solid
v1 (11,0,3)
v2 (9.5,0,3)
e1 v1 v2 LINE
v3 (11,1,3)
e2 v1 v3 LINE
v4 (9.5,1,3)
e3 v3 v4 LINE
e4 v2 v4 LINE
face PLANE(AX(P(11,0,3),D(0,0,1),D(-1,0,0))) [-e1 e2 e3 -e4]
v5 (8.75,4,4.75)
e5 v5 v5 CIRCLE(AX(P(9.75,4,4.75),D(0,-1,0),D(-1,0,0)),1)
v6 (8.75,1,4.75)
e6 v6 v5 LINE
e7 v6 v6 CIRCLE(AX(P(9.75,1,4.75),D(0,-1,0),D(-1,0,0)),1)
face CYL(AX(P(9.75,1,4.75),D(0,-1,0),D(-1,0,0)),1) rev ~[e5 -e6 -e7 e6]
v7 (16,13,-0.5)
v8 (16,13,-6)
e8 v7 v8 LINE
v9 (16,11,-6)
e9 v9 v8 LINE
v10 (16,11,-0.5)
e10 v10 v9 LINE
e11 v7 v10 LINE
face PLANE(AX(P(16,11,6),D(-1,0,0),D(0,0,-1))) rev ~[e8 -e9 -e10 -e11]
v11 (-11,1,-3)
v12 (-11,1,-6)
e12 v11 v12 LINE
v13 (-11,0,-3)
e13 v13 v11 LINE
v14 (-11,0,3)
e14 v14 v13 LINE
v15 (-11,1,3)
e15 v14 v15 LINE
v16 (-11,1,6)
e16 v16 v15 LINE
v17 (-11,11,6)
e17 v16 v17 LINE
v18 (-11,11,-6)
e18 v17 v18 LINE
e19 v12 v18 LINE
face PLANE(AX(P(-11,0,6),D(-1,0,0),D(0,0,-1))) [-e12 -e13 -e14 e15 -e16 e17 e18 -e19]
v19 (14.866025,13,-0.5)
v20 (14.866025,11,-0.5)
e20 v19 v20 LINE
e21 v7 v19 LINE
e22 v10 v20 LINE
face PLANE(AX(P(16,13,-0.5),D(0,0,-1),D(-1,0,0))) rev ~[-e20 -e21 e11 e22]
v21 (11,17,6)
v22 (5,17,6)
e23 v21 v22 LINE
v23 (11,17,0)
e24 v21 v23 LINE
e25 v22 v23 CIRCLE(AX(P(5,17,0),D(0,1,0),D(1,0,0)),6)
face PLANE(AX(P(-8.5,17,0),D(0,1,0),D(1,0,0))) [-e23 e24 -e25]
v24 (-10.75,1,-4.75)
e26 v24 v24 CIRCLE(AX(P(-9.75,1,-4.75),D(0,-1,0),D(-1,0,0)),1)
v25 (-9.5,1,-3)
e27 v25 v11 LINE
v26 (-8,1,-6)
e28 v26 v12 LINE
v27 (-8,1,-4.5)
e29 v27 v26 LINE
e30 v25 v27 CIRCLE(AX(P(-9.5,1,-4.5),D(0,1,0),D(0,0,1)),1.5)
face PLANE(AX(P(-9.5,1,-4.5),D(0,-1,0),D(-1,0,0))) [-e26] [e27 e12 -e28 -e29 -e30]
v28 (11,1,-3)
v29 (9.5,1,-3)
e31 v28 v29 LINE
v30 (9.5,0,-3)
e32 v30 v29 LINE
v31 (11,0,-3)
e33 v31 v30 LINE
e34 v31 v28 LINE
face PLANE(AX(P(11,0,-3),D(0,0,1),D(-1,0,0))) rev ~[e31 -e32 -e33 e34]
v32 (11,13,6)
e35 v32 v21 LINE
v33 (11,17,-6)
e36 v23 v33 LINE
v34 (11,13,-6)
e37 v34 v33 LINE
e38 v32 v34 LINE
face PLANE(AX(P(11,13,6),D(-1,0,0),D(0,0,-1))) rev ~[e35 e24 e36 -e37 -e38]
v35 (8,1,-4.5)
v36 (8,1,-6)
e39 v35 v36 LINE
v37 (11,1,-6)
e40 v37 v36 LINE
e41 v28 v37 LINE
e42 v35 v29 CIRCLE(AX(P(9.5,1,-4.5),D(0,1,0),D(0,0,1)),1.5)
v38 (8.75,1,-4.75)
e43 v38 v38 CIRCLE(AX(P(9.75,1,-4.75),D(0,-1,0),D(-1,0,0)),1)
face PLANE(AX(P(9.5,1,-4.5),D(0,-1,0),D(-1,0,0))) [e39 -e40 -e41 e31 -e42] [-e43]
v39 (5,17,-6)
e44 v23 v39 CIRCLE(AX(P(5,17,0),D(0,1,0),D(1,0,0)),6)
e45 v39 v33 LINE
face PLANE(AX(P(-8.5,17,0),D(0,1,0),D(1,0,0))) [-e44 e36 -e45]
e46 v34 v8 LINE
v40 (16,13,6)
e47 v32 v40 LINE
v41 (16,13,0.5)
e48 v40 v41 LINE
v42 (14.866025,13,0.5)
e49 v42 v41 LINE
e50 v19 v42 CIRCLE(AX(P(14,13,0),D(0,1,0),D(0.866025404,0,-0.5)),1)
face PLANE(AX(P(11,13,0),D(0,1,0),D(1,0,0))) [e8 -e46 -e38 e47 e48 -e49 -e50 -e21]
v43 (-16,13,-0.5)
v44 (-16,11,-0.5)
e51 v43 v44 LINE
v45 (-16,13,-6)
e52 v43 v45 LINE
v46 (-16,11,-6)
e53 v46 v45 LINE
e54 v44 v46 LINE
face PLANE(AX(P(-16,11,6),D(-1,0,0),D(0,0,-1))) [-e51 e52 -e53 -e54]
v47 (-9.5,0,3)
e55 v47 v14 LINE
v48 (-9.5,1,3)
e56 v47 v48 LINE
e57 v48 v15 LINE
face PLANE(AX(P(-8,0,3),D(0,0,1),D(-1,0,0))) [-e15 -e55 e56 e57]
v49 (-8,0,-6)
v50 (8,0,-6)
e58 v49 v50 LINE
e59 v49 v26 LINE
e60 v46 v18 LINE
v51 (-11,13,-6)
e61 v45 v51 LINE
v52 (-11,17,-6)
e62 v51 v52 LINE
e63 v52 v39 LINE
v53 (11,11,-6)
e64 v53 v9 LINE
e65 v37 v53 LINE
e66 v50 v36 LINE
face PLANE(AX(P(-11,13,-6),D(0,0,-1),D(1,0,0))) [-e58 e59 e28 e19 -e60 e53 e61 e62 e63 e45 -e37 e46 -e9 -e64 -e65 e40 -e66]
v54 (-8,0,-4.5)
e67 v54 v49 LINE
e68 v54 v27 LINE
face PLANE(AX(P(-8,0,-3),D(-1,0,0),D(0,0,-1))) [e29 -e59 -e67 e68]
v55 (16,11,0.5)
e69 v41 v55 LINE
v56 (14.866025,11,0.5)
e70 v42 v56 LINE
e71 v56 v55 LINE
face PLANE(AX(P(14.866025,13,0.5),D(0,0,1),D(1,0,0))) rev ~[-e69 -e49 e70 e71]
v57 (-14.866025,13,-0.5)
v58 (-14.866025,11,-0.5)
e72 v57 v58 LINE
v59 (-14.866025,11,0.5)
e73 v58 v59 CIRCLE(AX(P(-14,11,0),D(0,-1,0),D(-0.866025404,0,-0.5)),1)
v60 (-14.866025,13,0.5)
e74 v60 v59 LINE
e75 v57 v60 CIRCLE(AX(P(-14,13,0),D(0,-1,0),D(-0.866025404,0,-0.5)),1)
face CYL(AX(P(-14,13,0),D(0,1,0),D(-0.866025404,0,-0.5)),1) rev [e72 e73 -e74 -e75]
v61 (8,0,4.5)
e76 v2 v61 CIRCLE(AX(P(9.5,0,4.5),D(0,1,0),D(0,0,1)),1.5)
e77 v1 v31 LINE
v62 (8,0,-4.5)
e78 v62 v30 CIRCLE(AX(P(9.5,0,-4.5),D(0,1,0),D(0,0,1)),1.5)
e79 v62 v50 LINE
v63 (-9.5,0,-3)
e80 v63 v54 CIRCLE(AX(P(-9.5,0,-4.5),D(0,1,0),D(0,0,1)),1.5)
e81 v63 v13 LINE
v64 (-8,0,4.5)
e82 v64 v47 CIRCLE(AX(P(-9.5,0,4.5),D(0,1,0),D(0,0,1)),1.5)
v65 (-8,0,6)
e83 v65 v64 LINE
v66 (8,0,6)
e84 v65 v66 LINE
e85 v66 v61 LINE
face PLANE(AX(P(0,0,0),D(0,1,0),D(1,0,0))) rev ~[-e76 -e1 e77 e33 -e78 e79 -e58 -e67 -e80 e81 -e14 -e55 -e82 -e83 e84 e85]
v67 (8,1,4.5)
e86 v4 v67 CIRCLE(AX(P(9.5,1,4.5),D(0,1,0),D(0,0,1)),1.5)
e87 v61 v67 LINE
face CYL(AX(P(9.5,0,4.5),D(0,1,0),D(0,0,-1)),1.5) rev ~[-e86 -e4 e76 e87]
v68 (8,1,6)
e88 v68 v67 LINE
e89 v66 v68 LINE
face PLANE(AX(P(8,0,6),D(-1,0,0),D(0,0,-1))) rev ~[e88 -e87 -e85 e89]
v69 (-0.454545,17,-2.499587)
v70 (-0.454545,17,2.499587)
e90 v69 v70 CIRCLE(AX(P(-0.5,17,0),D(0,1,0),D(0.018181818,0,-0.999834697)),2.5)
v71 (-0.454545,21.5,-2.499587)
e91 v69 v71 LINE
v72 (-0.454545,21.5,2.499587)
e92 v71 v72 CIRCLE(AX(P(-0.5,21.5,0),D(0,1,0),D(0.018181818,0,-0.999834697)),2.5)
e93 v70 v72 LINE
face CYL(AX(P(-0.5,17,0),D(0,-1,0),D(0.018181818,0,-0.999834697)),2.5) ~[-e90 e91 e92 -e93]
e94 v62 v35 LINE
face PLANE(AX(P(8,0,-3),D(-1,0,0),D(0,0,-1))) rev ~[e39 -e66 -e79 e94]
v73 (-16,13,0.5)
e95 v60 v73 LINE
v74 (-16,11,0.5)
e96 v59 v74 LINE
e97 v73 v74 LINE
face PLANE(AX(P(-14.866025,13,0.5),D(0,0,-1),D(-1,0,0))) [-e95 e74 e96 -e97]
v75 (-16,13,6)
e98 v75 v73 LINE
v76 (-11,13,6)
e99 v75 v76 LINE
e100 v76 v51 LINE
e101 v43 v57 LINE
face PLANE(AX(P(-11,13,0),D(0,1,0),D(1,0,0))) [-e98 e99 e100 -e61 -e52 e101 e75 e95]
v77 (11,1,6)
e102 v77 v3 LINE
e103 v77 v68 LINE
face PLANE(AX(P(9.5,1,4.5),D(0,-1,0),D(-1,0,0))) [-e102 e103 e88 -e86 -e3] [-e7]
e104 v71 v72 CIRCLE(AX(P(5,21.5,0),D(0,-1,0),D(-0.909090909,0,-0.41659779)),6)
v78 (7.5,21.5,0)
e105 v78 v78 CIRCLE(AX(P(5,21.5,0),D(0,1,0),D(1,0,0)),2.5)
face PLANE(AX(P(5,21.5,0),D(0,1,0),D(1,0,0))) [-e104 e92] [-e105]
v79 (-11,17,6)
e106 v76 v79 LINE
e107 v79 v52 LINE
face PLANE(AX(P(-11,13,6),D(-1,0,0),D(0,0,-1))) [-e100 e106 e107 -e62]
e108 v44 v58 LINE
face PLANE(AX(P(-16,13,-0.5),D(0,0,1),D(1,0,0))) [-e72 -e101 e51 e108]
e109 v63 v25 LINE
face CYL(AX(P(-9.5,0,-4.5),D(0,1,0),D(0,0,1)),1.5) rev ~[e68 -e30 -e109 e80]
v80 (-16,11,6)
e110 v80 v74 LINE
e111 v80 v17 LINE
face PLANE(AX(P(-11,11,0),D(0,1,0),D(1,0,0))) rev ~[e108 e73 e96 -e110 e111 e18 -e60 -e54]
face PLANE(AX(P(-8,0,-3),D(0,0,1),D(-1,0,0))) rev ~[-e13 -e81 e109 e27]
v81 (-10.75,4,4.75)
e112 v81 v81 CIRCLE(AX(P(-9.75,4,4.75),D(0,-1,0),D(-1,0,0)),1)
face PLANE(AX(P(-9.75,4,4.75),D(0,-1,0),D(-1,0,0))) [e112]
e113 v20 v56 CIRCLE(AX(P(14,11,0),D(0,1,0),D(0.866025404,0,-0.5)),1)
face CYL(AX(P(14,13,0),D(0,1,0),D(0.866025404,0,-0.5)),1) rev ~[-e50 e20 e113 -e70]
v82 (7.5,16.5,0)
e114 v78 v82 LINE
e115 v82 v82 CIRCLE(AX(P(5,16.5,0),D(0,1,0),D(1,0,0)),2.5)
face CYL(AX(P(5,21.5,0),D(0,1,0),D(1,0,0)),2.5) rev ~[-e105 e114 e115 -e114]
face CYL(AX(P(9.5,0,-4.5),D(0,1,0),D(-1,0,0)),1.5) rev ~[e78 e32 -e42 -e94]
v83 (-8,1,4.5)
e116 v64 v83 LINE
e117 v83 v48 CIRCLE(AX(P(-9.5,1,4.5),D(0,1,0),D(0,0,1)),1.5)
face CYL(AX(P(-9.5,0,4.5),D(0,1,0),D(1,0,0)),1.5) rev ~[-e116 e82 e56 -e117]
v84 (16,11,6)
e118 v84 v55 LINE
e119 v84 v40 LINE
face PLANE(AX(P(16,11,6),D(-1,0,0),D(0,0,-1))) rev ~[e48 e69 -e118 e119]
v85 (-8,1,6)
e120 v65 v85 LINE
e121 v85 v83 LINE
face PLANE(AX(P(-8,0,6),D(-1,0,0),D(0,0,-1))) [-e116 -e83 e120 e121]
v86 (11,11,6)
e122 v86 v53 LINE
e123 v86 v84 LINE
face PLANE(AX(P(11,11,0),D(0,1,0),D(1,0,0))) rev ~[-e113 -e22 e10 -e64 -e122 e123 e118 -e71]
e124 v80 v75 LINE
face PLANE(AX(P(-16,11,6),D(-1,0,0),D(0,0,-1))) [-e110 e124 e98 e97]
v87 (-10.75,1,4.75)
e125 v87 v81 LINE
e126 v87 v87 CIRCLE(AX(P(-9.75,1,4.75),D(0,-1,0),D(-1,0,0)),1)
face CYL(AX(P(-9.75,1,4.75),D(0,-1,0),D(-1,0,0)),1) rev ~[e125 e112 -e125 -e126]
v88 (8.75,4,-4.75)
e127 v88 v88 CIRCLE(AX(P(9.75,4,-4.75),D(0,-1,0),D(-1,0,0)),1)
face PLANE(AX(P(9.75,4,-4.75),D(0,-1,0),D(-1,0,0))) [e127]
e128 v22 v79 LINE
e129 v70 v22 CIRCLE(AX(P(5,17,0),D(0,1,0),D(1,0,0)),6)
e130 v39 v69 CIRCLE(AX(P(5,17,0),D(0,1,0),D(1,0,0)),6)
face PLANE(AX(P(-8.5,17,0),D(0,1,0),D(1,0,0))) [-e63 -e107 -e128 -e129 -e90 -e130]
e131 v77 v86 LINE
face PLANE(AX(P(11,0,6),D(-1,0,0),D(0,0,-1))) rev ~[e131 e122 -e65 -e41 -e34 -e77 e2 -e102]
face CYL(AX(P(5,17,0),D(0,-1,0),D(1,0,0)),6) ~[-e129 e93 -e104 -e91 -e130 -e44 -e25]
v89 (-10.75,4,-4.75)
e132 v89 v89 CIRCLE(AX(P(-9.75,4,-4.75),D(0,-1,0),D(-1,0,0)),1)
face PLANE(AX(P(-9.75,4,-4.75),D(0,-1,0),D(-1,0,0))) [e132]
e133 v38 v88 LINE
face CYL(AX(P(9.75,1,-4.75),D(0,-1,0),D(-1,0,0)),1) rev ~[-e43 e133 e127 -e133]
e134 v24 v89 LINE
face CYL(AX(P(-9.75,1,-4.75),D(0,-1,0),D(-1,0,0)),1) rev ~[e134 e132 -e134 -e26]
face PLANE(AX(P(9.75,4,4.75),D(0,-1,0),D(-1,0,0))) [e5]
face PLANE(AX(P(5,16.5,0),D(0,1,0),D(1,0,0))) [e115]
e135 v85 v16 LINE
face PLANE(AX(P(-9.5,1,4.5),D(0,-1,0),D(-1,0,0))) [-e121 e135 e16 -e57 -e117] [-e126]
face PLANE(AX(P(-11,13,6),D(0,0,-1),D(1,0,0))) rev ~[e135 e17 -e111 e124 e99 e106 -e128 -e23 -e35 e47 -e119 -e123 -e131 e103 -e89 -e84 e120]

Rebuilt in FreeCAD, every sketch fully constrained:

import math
import FreeCAD as App
import Part
import Sketcher

V = App.Vector
Q = App.Units.Quantity


def edges_at(feature, points):
    """Names of the edges that pass closest to the given points."""
    edges = feature.Shape.Edges
    near = lambda p: min(range(len(edges)), key=lambda i: edges[i].distToShape(Part.Vertex(*p))[0])
    return sorted({f"Edge{near(p) + 1}" for p in points})


def add_polygon(sketch, points):
    """Adds a closed chain of lines whose ends are joined by coincident constraints."""
    first, n = sketch.GeometryCount, len(points)
    for a, b in zip(points, points[1:] + points[:1]):
        sketch.addGeometry(Part.LineSegment(App.Vector(*a, 0), App.Vector(*b, 0)), False)
    for i in range(n):
        sketch.addConstraint(Sketcher.Constraint("Coincident", first + i, 2, first + (i + 1) % n, 1))

doc = App.newDocument("Part")
body = doc.addObject("PartDesign::Body", "Body")

sketch1 = doc.addObject("Sketcher::SketchObject", "Sketch")
body.addObject(sketch1)
sketch1.AttachmentSupport = (doc.XZ_Plane, [""])
sketch1.MapMode = "FlatFace"
add_polygon(sketch1, [(-11, -6), (-11, 6), (11, 6), (11, -6)])
sketch1.addConstraint([
    Sketcher.Constraint("Vertical", 0),
    Sketcher.Constraint("Horizontal", 1),
    Sketcher.Constraint("Vertical", 2),
    Sketcher.Constraint("Horizontal", 3),
    Sketcher.Constraint("Symmetric", 0, 2, 2, 2, -1, 1),
    Sketcher.Constraint("DistanceX", 1, 1, 1, 2, Q("22 mm")),
    Sketcher.Constraint("DistanceY", 0, 1, 0, 2, Q("12 mm")),
])
pad1 = doc.addObject("PartDesign::Pad", "Pad")
body.addObject(pad1)
pad1.Profile = sketch1
pad1.Length = 11
pad1.Reversed = True

sketch2 = doc.addObject("Sketcher::SketchObject", "Sketch001")
body.addObject(sketch2)
sketch2.AttachmentSupport = (doc.XZ_Plane, [""])
sketch2.MapMode = "FlatFace"
sketch2.AttachmentOffset = App.Placement(V(0, 0, -11), App.Rotation())
add_polygon(sketch2, [(-16, -6), (-16, 6), (-6, 6), (-6, -6)])
add_polygon(sketch2, [(6, -6), (6, 6), (16, 6), (16, -6)])
sketch2.addConstraint([
    Sketcher.Constraint("Vertical", 0),
    Sketcher.Constraint("Horizontal", 1),
    Sketcher.Constraint("Vertical", 2),
    Sketcher.Constraint("Horizontal", 3),
    Sketcher.Constraint("Vertical", 4),
    Sketcher.Constraint("Horizontal", 5),
    Sketcher.Constraint("Vertical", 6),
    Sketcher.Constraint("Horizontal", 7),
    Sketcher.Constraint("Symmetric", 2, 2, 4, 2, -1, 1),
    Sketcher.Constraint("Symmetric", 0, 2, 6, 2, -1, 1),
    Sketcher.Constraint("Horizontal", 1, 2, 4, 2),
    Sketcher.Constraint("DistanceX", 1, 1, 1, 2, Q("10 mm")),
    Sketcher.Constraint("DistanceY", 0, 1, 0, 2, Q("12 mm")),
    Sketcher.Constraint("DistanceX", 0, 2, -1, 1, Q("16 mm")),
])
pad2 = doc.addObject("PartDesign::Pad", "Pad001")
body.addObject(pad2)
pad2.Profile = sketch2
pad2.Length = 2
pad2.Reversed = True

sketch3 = doc.addObject("Sketcher::SketchObject", "Sketch002")
body.addObject(sketch3)
sketch3.AttachmentSupport = (doc.XZ_Plane, [""])
sketch3.MapMode = "FlatFace"
sketch3.AttachmentOffset = App.Placement(V(0, 0, -11), App.Rotation())
add_polygon(sketch3, [(-6, -6), (-6, 6), (6, 6), (6, -6)])
sketch3.addConstraint([
    Sketcher.Constraint("Vertical", 0),
    Sketcher.Constraint("Horizontal", 1),
    Sketcher.Constraint("Vertical", 2),
    Sketcher.Constraint("Horizontal", 3),
    Sketcher.Constraint("Symmetric", 0, 2, 2, 2, -1, 1),
    Sketcher.Constraint("Equal", 3, 0),
    Sketcher.Constraint("DistanceX", 1, 1, 1, 2, Q("12 mm")),
])
pad3 = doc.addObject("PartDesign::Pad", "Pad002")
body.addObject(pad3)
pad3.Profile = sketch3
pad3.Length = 6
pad3.Reversed = True

sketch4 = doc.addObject("Sketcher::SketchObject", "Sketch003")
body.addObject(sketch4)
sketch4.AttachmentSupport = (doc.XZ_Plane, [""])
sketch4.MapMode = "FlatFace"
sketch4.AttachmentOffset = App.Placement(V(0, 0, -13), App.Rotation())
sketch4.addGeometry([
    Part.LineSegment(V(-14.866025, -0.5, 0), V(-16, -0.5, 0)),
    Part.LineSegment(V(-16, -0.5, 0), V(-16, 0.5, 0)),
    Part.LineSegment(V(-16, 0.5, 0), V(-14.866025, 0.5, 0)),
    Part.ArcOfCircle(Part.Circle(V(-14, 0, 0), V(0, 0, 1), 1), math.radians(-150), math.radians(150)),
], False)
sketch4.addConstraint([
    Sketcher.Constraint("Coincident", 0, 2, 1, 1),
    Sketcher.Constraint("Coincident", 1, 2, 2, 1),
    Sketcher.Constraint("Coincident", 2, 2, 3, 2),
    Sketcher.Constraint("Coincident", 3, 1, 0, 1),
    Sketcher.Constraint("Horizontal", 0),
    Sketcher.Constraint("Vertical", 1),
    Sketcher.Constraint("Horizontal", 2),
    Sketcher.Constraint("Symmetric", 2, 2, 3, 1, -1),
    Sketcher.Constraint("Radius", 3, Q("1 mm")),
    Sketcher.Constraint("DistanceY", 1, 1, 1, 2, Q("1 mm")),
    Sketcher.Constraint("DistanceX", 3, 3, -1, 1, Q("14 mm")),
    Sketcher.Constraint("DistanceX", 0, 2, -1, 1, Q("16 mm")),
])
pocket1 = doc.addObject("PartDesign::Pocket", "Pocket")
body.addObject(pocket1)
pocket1.Profile = sketch4
pocket1.Length = 2
pocket1.Reversed = True

sketch5 = doc.addObject("Sketcher::SketchObject", "Sketch004")
body.addObject(sketch5)
sketch5.AttachmentSupport = (doc.XZ_Plane, [""])
sketch5.MapMode = "FlatFace"
sketch5.AttachmentOffset = App.Placement(V(0, 0, -13), App.Rotation())
add_polygon(sketch5, [(-11, -6), (-11, 6), (-6, 6), (-6, -6)])
add_polygon(sketch5, [(6, -6), (6, 6), (11, 6), (11, -6)])
sketch5.addConstraint([
    Sketcher.Constraint("Vertical", 0),
    Sketcher.Constraint("Horizontal", 1),
    Sketcher.Constraint("Vertical", 2),
    Sketcher.Constraint("Horizontal", 3),
    Sketcher.Constraint("Vertical", 4),
    Sketcher.Constraint("Horizontal", 5),
    Sketcher.Constraint("Vertical", 6),
    Sketcher.Constraint("Horizontal", 7),
    Sketcher.Constraint("Symmetric", 2, 2, 4, 2, -1, 1),
    Sketcher.Constraint("Symmetric", 0, 2, 6, 2, -1, 1),
    Sketcher.Constraint("Horizontal", 1, 2, 4, 2),
    Sketcher.Constraint("DistanceX", 1, 1, 1, 2, Q("5 mm")),
    Sketcher.Constraint("DistanceY", 0, 1, 0, 2, Q("12 mm")),
    Sketcher.Constraint("DistanceX", 0, 2, -1, 1, Q("11 mm")),
])
pad4 = doc.addObject("PartDesign::Pad", "Pad003")
body.addObject(pad4)
pad4.Profile = sketch5
pad4.Length = 4
pad4.Reversed = True

sketch6 = doc.addObject("Sketcher::SketchObject", "Sketch005")
body.addObject(sketch6)
sketch6.AttachmentSupport = (doc.XZ_Plane, [""])
sketch6.MapMode = "FlatFace"
sketch6.AttachmentOffset = App.Placement(V(0, 0, -13), App.Rotation())
sketch6.addGeometry([
    Part.LineSegment(V(16, -0.5, 0), V(14.866025, -0.5, 0)),
    Part.ArcOfCircle(Part.Circle(V(14, 0, 0), V(0, 0, 1), 1), math.radians(30), math.radians(330)),
    Part.LineSegment(V(14.866025, 0.5, 0), V(16, 0.5, 0)),
    Part.LineSegment(V(16, 0.5, 0), V(16, -0.5, 0)),
], False)
sketch6.addConstraint([
    Sketcher.Constraint("Coincident", 0, 2, 1, 2),
    Sketcher.Constraint("Coincident", 1, 1, 2, 1),
    Sketcher.Constraint("Coincident", 2, 2, 3, 1),
    Sketcher.Constraint("Coincident", 3, 2, 0, 1),
    Sketcher.Constraint("Horizontal", 0),
    Sketcher.Constraint("Horizontal", 2),
    Sketcher.Constraint("Vertical", 3),
    Sketcher.Constraint("Symmetric", 0, 2, 1, 1, -1),
    Sketcher.Constraint("Radius", 1, Q("1 mm")),
    Sketcher.Constraint("DistanceY", 3, 2, 3, 1, Q("1 mm")),
    Sketcher.Constraint("DistanceX", -1, 1, 1, 3, Q("14 mm")),
    Sketcher.Constraint("DistanceX", -1, 1, 2, 2, Q("16 mm")),
])
pocket2 = doc.addObject("PartDesign::Pocket", "Pocket001")
body.addObject(pocket2)
pocket2.Profile = sketch6
pocket2.Length = 4
pocket2.Reversed = True

sketch7 = doc.addObject("Sketcher::SketchObject", "Sketch006")
body.addObject(sketch7)
sketch7.AttachmentSupport = (doc.XZ_Plane, [""])
sketch7.MapMode = "FlatFace"
sketch7.AttachmentOffset = App.Placement(V(0, 0, -17), App.Rotation())
sketch7.addGeometry(Part.Circle(V(5, 0, 0), V(0, 0, 1), 6), False)
sketch7.addConstraint([
    Sketcher.Constraint("PointOnObject", 0, 3, -1),
    Sketcher.Constraint("Diameter", 0, Q("12 mm")),
    Sketcher.Constraint("DistanceX", -1, 1, 0, 3, Q("5 mm")),
])
pad5 = doc.addObject("PartDesign::Pad", "Pad004")
body.addObject(pad5)
pad5.Profile = sketch7
pad5.Length = 4.5
pad5.Reversed = True

sketch8 = doc.addObject("Sketcher::SketchObject", "Sketch007")
body.addObject(sketch8)
sketch8.AttachmentSupport = (doc.XZ_Plane, [""])
sketch8.MapMode = "FlatFace"
sketch8.AttachmentOffset = App.Placement(V(0, 0, -17), App.Rotation())
sketch8.addGeometry([
    Part.ArcOfCircle(Part.Circle(V(5, 0, 0), V(0, 0, 1), 6), math.radians(155.380023), math.radians(204.619977)),
    Part.ArcOfCircle(Part.Circle(V(-0.5, 0, 0), V(0, 0, 1), 2.5), math.radians(88.958201), math.radians(271.041799)),
], False)
sketch8.addConstraint([
    Sketcher.Constraint("Coincident", 0, 1, 1, 1),
    Sketcher.Constraint("Coincident", 1, 2, 0, 2),
    Sketcher.Constraint("Symmetric", 0, 1, 1, 2, -1),
    Sketcher.Constraint("Radius", 0, Q("6 mm")),
    Sketcher.Constraint("Radius", 1, Q("2.5 mm")),
    Sketcher.Constraint("DistanceX", -1, 1, 0, 3, Q("5 mm")),
    Sketcher.Constraint("DistanceX", 1, 3, -1, 1, Q("0.5 mm")),
])
pad6 = doc.addObject("PartDesign::Pad", "Pad005")
body.addObject(pad6)
pad6.Profile = sketch8
pad6.Length = 4.5
pad6.Reversed = True

sketch9 = doc.addObject("Sketcher::SketchObject", "Sketch008")
body.addObject(sketch9)
sketch9.AttachmentSupport = (doc.XZ_Plane, [""])
sketch9.MapMode = "FlatFace"
add_polygon(sketch9, [(-8, 3), (-8, 6), (-11, 6), (-11, 3)])
sketch9.addConstraint([
    Sketcher.Constraint("Vertical", 0),
    Sketcher.Constraint("Horizontal", 1),
    Sketcher.Constraint("Vertical", 2),
    Sketcher.Constraint("Horizontal", 3),
    Sketcher.Constraint("Equal", 3, 0),
    Sketcher.Constraint("DistanceX", 1, 2, 1, 1, Q("3 mm")),
    Sketcher.Constraint("DistanceX", 0, 2, -1, 1, Q("8 mm")),
    Sketcher.Constraint("DistanceY", -1, 1, 0, 2, Q("6 mm")),
])
pocket3 = doc.addObject("PartDesign::Pocket", "Pocket002")
body.addObject(pocket3)
pocket3.Profile = sketch9
pocket3.Length = 1
doc.recompute()

fillet = doc.addObject("PartDesign::Fillet", "Fillet")
body.addObject(fillet)
fillet.Base = (pocket3, edges_at(pocket3, [(-8, 0.5, 3)]))
fillet.Radius = 1.5

sketch10 = doc.addObject("Sketcher::SketchObject", "Sketch009")
body.addObject(sketch10)
sketch10.AttachmentSupport = (doc.XZ_Plane, [""])
sketch10.MapMode = "FlatFace"
add_polygon(sketch10, [(-8, -6), (-8, -3), (-11, -3), (-11, -6)])
add_polygon(sketch10, [(11, 3), (11, 6), (8, 6), (8, 3)])
add_polygon(sketch10, [(11, -6), (11, -3), (8, -3), (8, -6)])
sketch10.addConstraint([
    Sketcher.Constraint("Vertical", 0),
    Sketcher.Constraint("Horizontal", 1),
    Sketcher.Constraint("Vertical", 2),
    Sketcher.Constraint("Horizontal", 3),
    Sketcher.Constraint("Vertical", 4),
    Sketcher.Constraint("Horizontal", 5),
    Sketcher.Constraint("Vertical", 6),
    Sketcher.Constraint("Horizontal", 7),
    Sketcher.Constraint("Vertical", 8),
    Sketcher.Constraint("Horizontal", 9),
    Sketcher.Constraint("Vertical", 10),
    Sketcher.Constraint("Horizontal", 11),
    Sketcher.Constraint("Symmetric", 2, 2, 4, 2, -1, 1),
    Sketcher.Constraint("Symmetric", 0, 2, 6, 2, -1, 1),
    Sketcher.Constraint("Symmetric", 1, 2, 8, 2, -2),
    Sketcher.Constraint("Symmetric", 3, 2, 10, 2, -2),
    Sketcher.Constraint("Equal", 11, 0),
    Sketcher.Constraint("DistanceX", 1, 2, 1, 1, Q("3 mm")),
    Sketcher.Constraint("DistanceX", 0, 2, -1, 1, Q("8 mm")),
    Sketcher.Constraint("DistanceY", 0, 2, -1, 1, Q("3 mm")),
])
pocket4 = doc.addObject("PartDesign::Pocket", "Pocket003")
body.addObject(pocket4)
pocket4.Profile = sketch10
pocket4.Length = 1
doc.recompute()

fillet2 = doc.addObject("PartDesign::Fillet", "Fillet001")
body.addObject(fillet2)
fillet2.Base = (pocket4, edges_at(pocket4, [(-8, 0.5, -3), (8, 0.5, 3), (8, 0.5, -3)]))
fillet2.Radius = 1.5

sketch11 = doc.addObject("Sketcher::SketchObject", "Sketch010")
body.addObject(sketch11)
sketch11.AttachmentSupport = (doc.XZ_Plane, [""])
sketch11.MapMode = "FlatFace"
sketch11.AttachmentOffset = App.Placement(V(0, 0, -1), App.Rotation())
sketch11.addGeometry([
    Part.Circle(V(-9.75, 4.75, 0), V(0, 0, 1), 1),
    Part.Circle(V(-9.75, -4.75, 0), V(0, 0, 1), 1),
    Part.Circle(V(9.75, 4.75, 0), V(0, 0, 1), 1),
    Part.Circle(V(9.75, -4.75, 0), V(0, 0, 1), 1),
], False)
sketch11.addConstraint([
    Sketcher.Constraint("Equal", 0, 1),
    Sketcher.Constraint("Equal", 1, 2),
    Sketcher.Constraint("Equal", 2, 3),
    Sketcher.Constraint("Symmetric", 1, 3, 2, 3, -1, 1),
    Sketcher.Constraint("Symmetric", 0, 3, 3, 3, -1, 1),
    Sketcher.Constraint("Symmetric", 0, 3, 2, 3, -2),
    Sketcher.Constraint("Diameter", 0, Q("2 mm")),
    Sketcher.Constraint("DistanceY", 1, 3, 0, 3, Q("9.5 mm")),
    Sketcher.Constraint("DistanceX", 0, 3, 2, 3, Q("19.5 mm")),
])
pocket5 = doc.addObject("PartDesign::Pocket", "Pocket004")
body.addObject(pocket5)
pocket5.Profile = sketch11
pocket5.Length = 3

sketch12 = doc.addObject("Sketcher::SketchObject", "Sketch011")
body.addObject(sketch12)
sketch12.AttachmentSupport = (doc.XZ_Plane, [""])
sketch12.MapMode = "FlatFace"
sketch12.AttachmentOffset = App.Placement(V(0, 0, -21.5), App.Rotation())
sketch12.addGeometry(Part.Circle(V(5, 0, 0), V(0, 0, 1), 2.5), False)
sketch12.addConstraint([
    Sketcher.Constraint("PointOnObject", 0, 3, -1),
    Sketcher.Constraint("Diameter", 0, Q("5 mm")),
    Sketcher.Constraint("DistanceX", -1, 1, 0, 3, Q("5 mm")),
])
pocket6 = doc.addObject("PartDesign::Pocket", "Pocket005")
body.addObject(pocket6)
pocket6.Profile = sketch12
pocket6.Length = 5
pocket6.Reversed = True

doc.recompute()
